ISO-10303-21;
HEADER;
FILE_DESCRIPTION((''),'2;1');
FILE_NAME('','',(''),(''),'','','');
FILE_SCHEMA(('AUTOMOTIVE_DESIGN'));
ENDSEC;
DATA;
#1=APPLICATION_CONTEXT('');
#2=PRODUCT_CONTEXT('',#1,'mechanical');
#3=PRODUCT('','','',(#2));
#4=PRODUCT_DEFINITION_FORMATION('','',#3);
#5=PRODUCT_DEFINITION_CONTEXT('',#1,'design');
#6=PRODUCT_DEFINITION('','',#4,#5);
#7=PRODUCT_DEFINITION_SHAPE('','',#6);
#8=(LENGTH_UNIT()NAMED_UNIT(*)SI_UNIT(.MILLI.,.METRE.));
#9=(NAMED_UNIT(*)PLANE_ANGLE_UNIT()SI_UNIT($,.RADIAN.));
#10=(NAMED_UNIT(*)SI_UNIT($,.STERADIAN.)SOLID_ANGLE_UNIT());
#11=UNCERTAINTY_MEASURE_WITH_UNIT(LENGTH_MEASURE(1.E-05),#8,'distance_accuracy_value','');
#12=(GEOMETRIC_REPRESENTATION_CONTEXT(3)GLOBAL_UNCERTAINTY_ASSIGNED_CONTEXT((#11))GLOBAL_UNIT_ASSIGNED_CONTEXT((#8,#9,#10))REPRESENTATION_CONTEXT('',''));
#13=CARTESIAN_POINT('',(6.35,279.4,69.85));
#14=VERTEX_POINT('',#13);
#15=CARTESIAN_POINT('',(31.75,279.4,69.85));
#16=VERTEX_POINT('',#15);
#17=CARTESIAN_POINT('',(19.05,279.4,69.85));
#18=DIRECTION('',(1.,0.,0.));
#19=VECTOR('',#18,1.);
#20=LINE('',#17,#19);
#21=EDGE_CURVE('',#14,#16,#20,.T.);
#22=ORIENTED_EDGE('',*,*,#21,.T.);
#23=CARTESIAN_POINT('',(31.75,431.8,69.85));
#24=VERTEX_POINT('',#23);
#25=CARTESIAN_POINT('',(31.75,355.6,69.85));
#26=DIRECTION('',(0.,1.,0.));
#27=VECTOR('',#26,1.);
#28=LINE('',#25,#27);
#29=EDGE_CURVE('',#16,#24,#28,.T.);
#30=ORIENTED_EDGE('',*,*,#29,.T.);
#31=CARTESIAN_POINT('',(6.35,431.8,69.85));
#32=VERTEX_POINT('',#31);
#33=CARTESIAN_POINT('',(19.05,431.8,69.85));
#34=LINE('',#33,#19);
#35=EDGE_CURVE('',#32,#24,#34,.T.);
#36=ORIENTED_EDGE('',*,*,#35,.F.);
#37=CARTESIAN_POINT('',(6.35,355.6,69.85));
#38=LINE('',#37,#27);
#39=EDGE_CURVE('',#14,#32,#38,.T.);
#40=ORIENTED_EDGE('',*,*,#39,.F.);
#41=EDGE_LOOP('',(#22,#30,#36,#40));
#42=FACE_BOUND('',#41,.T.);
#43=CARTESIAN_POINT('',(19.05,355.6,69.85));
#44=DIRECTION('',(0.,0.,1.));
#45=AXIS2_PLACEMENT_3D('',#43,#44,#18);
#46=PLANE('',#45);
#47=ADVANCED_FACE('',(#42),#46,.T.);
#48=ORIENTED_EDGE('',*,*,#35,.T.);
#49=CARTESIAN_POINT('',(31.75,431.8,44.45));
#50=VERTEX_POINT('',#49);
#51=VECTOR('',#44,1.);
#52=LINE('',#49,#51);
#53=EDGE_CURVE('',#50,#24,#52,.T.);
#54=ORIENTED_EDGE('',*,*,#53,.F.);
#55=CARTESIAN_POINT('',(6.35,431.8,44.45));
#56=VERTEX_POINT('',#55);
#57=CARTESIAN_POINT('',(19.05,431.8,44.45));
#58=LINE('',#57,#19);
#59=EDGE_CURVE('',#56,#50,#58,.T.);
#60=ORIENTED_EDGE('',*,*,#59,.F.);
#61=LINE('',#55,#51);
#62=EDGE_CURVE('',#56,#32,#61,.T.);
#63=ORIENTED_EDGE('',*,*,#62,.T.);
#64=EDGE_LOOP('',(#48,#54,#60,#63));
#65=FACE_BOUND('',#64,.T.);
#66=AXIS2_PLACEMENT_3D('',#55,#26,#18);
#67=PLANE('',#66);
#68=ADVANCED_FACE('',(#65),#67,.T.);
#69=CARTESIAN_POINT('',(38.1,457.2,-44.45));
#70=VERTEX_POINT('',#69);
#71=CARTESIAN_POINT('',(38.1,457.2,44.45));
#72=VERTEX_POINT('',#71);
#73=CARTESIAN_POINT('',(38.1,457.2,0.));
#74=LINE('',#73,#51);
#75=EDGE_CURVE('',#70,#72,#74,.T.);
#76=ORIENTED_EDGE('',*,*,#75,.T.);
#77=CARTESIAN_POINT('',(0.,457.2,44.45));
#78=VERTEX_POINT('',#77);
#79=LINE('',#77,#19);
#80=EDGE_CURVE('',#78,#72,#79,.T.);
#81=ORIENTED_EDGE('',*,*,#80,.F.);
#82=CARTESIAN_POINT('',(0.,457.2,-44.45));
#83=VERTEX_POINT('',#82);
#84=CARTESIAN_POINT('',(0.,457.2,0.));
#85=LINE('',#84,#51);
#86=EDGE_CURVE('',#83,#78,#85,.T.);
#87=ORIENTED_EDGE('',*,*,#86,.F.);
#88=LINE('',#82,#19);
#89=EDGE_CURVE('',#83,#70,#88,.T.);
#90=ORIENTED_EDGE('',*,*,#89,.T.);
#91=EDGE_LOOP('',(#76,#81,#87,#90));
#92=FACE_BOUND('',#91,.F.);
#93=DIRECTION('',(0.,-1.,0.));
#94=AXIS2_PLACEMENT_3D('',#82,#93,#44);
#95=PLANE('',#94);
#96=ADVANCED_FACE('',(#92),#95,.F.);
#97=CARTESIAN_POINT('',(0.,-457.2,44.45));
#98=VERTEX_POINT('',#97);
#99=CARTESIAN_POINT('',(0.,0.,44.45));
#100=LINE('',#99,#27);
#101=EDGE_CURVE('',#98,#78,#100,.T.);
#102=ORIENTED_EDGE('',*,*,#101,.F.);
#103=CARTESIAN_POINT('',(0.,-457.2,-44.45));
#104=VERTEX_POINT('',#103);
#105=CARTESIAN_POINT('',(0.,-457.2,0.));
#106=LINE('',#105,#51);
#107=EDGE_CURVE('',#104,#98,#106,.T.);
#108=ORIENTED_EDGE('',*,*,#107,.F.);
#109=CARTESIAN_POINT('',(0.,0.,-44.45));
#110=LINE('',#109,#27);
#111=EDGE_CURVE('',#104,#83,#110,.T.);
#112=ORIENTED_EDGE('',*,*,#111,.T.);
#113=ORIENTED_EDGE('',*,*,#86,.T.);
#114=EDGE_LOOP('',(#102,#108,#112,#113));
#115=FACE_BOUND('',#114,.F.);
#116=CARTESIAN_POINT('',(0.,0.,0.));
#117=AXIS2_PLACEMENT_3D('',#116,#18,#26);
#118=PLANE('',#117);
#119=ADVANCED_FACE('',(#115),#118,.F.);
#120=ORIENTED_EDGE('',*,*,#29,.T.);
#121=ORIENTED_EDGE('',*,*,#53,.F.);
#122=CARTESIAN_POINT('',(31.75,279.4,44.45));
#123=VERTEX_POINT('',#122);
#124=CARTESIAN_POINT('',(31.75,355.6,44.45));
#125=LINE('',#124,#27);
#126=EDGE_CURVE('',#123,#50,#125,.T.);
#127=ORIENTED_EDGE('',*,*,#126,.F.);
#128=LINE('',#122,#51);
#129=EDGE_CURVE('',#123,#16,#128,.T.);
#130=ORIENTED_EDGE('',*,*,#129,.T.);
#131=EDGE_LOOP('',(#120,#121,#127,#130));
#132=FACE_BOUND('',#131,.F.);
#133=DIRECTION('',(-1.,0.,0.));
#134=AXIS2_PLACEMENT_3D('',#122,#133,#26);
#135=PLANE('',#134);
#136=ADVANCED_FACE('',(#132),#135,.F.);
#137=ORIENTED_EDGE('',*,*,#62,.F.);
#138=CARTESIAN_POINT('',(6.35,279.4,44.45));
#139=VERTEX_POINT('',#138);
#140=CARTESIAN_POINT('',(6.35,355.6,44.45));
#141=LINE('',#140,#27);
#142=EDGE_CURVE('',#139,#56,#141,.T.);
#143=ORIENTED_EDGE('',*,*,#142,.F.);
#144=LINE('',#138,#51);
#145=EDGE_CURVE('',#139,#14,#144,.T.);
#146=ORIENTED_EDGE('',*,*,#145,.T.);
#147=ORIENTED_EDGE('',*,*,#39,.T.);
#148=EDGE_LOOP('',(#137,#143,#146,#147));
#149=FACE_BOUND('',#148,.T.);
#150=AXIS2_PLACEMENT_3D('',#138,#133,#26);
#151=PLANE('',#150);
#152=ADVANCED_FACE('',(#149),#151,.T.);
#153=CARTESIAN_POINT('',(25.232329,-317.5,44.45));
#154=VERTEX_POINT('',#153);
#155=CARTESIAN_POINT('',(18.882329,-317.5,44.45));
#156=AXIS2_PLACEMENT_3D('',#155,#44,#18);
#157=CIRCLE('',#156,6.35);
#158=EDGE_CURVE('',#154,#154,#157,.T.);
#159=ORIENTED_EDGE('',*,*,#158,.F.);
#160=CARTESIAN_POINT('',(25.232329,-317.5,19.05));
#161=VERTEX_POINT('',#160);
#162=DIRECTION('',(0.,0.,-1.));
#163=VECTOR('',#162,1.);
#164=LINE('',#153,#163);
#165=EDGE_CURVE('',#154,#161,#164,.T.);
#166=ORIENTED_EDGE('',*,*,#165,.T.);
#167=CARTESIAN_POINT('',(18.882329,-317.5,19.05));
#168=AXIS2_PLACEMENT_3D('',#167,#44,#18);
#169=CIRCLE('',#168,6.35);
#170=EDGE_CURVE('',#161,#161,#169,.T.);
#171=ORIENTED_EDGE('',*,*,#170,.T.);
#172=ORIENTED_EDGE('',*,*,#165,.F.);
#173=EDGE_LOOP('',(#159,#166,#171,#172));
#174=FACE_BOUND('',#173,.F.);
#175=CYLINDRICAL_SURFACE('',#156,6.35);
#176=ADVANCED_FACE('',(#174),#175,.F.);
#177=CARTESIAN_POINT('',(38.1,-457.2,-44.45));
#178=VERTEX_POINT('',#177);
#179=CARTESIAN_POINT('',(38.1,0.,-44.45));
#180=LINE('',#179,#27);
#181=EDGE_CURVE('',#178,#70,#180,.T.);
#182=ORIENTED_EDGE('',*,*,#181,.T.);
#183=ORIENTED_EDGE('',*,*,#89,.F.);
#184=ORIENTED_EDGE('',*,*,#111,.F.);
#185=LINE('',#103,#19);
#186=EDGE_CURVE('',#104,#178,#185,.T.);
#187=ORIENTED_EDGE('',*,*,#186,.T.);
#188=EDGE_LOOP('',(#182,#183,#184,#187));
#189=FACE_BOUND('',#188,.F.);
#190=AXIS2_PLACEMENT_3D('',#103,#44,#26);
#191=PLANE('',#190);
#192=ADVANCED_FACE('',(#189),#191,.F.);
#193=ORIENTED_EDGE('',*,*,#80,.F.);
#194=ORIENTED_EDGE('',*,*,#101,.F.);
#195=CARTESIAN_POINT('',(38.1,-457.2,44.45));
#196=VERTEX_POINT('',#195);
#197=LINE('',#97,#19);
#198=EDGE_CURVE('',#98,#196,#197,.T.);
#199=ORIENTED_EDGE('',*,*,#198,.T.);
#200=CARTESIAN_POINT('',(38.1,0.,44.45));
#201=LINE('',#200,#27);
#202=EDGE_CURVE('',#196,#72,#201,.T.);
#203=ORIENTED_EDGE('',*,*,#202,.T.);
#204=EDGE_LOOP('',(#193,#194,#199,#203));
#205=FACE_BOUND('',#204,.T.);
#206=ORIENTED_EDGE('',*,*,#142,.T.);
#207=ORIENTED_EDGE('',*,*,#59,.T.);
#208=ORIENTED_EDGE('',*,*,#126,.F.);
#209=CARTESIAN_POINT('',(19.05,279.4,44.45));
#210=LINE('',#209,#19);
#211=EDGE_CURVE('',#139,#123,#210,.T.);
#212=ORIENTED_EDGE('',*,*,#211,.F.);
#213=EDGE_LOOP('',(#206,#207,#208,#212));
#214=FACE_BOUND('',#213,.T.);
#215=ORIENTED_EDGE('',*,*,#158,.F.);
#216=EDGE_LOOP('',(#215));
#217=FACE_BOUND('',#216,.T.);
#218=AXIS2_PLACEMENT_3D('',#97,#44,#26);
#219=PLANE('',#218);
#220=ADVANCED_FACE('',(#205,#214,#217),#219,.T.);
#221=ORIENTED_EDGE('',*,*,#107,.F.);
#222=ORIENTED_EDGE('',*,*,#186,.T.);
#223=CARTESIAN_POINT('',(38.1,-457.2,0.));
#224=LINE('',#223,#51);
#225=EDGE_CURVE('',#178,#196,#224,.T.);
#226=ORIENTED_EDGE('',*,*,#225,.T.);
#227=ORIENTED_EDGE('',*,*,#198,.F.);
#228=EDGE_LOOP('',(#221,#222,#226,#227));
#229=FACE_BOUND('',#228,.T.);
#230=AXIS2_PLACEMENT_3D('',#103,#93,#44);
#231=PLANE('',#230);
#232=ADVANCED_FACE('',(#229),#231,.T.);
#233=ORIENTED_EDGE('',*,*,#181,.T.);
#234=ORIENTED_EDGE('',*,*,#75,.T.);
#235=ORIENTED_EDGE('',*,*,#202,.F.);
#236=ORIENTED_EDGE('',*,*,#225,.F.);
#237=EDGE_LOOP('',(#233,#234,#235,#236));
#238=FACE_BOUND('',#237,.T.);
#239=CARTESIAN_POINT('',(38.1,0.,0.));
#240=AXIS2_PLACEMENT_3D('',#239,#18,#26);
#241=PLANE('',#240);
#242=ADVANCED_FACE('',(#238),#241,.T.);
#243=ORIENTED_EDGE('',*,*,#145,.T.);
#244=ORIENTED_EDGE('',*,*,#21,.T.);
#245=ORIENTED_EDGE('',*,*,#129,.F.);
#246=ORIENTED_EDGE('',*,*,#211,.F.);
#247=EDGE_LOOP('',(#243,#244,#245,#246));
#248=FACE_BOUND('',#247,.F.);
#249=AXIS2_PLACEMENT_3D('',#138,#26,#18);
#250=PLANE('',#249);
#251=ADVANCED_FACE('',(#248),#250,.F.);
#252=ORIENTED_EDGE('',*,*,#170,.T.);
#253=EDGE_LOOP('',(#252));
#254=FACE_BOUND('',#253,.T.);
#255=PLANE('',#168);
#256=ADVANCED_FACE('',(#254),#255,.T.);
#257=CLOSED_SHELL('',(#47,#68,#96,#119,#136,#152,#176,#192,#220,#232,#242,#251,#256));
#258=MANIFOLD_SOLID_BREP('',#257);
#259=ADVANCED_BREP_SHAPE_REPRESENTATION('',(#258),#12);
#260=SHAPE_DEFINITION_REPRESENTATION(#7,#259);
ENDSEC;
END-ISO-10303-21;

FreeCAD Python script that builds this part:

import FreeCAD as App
import Part
import Sketcher
from FreeCAD import Vector
Q = App.Units.Quantity


def add_polygon(sketch, points):
    """Adds a closed chain of lines whose ends are joined by coincident constraints."""
    first, n = sketch.GeometryCount, len(points)
    for a, b in zip(points, points[1:] + points[:1]):
        sketch.addGeometry(Part.LineSegment(App.Vector(*a, 0), App.Vector(*b, 0)), False)
    for i in range(n):
        sketch.addConstraint(Sketcher.Constraint("Coincident", first + i, 2, first + (i + 1) % n, 1))

doc = App.newDocument("Part")
params = doc.addObject("Spreadsheet::Sheet", "Params")
for row, (alias, value) in enumerate([
    ("sketch1_width", "36 in"),
    ("sketch1_height", "3.5 in"),
    ("pad1_length", "1.5 in"),
    ("sketch2_diameter", "0.5 in"),
    ("pocket1_length", "1 in"),
    ("sketch3_width", "1 in"),
    ("sketch3_height", "6 in"),
    ("pad2_length", "1 in"),
], start=1):
    params.set(f"A{row}", alias)
    params.set(f"B{row}", "=" + value)
    params.setAlias(f"B{row}", alias)

body = doc.addObject("PartDesign::Body", "Body")

# Sketch on YZ plane
sketch1 = body.newObject("Sketcher::SketchObject", "Sketch")
sketch1.AttachmentSupport = (doc.getObject("YZ_Plane"), [""])
sketch1.MapMode = "FlatFace"
add_polygon(sketch1, [(-457, 44), (-457, -44), (457, -44), (457, 44)])  # lines 0-3
sketch1.addConstraint(Sketcher.Constraint("Vertical", 0))
sketch1.addConstraint(Sketcher.Constraint("Horizontal", 1))
sketch1.addConstraint(Sketcher.Constraint("Vertical", 2))
sketch1.addConstraint(Sketcher.Constraint("Horizontal", 3))
sketch1.addConstraint(Sketcher.Constraint("Symmetric", 0, 2, 2, 2, -1, 1))
sketch1.addConstraint(Sketcher.Constraint("DistanceX", 1, 1, 1, 2, Q("36 in")))
sketch1.addConstraint(Sketcher.Constraint("DistanceY", 0, 2, 0, 1, Q("3.5 in")))
sketch1.setExpression("Constraints[9]", "Params.sketch1_width")
sketch1.setExpression("Constraints[10]", "Params.sketch1_height")
pad1 = body.newObject("PartDesign::Pad", "Pad")
pad1.Profile = sketch1
pad1.setExpression("Length", "Params.pad1_length")

# Sketch on XY plane
sketch2 = body.newObject("Sketcher::SketchObject", "Sketch001")
sketch2.AttachmentSupport = (doc.getObject("XY_Plane"), [""])
sketch2.MapMode = "FlatFace"
sketch2.AttachmentOffset = App.Placement(Vector(0, 0, 1.75 * 25.4), App.Rotation())
sketch2.addGeometry(Part.Circle(Vector(19, -318, 0), Vector(0, 0, 1), 6), False)
sketch2.addConstraint(Sketcher.Constraint("Diameter", 0, Q("0.5 in")))
sketch2.addConstraint(Sketcher.Constraint("DistanceY", 0, 3, -1, 1, Q("12.5 in")))
sketch2.addConstraint(Sketcher.Constraint("DistanceX", -1, 1, 0, 3, 18.882329))
sketch2.setExpression("Constraints[0]", "Params.sketch2_diameter")
pocket1 = body.newObject("PartDesign::Pocket", "Pocket")
pocket1.Profile = sketch2
pocket1.setExpression("Length", "Params.pocket1_length")

# Sketch on XY plane
sketch3 = body.newObject("Sketcher::SketchObject", "Sketch002")
sketch3.AttachmentSupport = (doc.getObject("XY_Plane"), [""])
sketch3.MapMode = "FlatFace"
sketch3.AttachmentOffset = App.Placement(Vector(0, 0, 1.75 * 25.4), App.Rotation())
add_polygon(sketch3, [(6, 432), (6, 279), (32, 279), (32, 432)])  # lines 0-3
sketch3.addConstraint(Sketcher.Constraint("Vertical", 0))
sketch3.addConstraint(Sketcher.Constraint("Horizontal", 1))
sketch3.addConstraint(Sketcher.Constraint("Vertical", 2))
sketch3.addConstraint(Sketcher.Constraint("Horizontal", 3))
sketch3.addConstraint(Sketcher.Constraint("DistanceX", 1, 1, 1, 2, Q("1 in")))
sketch3.addConstraint(Sketcher.Constraint("DistanceY", 0, 2, 0, 1, Q("6 in")))
sketch3.addConstraint(Sketcher.Constraint("DistanceY", -1, 1, 0, 2, Q("11 in")))
sketch3.addConstraint(Sketcher.Constraint("DistanceX", -1, 1, 0, 2, Q("0.25 in")))
sketch3.setExpression("Constraints[8]", "Params.sketch3_width")
sketch3.setExpression("Constraints[9]", "Params.sketch3_height")
pad2 = body.newObject("PartDesign::Pad", "Pad001")
pad2.Profile = sketch3
pad2.setExpression("Length", "Params.pad2_length")

doc.recompute()
